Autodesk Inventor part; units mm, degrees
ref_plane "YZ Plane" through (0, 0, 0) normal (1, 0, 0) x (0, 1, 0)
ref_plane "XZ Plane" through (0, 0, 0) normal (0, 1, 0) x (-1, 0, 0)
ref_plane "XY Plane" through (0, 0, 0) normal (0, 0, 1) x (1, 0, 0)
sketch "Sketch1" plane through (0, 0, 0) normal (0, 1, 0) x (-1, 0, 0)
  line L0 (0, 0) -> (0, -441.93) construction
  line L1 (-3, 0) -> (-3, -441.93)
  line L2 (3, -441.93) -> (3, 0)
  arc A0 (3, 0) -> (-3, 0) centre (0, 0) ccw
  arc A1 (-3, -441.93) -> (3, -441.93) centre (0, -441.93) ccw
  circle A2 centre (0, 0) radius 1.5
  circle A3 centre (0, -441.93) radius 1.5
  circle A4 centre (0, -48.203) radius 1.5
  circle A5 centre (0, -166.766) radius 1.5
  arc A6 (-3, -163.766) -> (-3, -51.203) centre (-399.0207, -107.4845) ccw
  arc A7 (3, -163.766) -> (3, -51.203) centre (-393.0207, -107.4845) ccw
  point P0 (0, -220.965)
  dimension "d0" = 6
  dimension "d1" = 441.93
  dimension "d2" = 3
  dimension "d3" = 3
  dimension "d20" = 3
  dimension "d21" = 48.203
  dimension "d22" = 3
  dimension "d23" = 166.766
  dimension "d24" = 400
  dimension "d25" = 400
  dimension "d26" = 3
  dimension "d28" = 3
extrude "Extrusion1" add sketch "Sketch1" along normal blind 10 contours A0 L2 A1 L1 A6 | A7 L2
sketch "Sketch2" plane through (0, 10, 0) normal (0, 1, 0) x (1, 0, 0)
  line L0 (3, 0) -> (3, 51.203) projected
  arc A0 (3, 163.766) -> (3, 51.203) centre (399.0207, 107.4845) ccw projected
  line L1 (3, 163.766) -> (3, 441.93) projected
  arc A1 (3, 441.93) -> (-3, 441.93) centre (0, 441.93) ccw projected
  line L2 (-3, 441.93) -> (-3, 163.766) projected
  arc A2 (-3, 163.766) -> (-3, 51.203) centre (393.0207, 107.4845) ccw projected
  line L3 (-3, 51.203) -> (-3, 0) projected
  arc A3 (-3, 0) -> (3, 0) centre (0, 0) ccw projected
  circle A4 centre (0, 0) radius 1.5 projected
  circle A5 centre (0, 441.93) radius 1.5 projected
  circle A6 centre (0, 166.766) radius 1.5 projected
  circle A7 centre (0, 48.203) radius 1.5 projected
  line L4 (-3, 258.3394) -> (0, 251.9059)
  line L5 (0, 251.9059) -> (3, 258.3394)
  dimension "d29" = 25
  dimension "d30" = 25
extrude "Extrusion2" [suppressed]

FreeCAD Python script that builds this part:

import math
import FreeCAD as App
import Part
import Sketcher

V = App.Vector
Q = App.Units.Quantity

doc = App.newDocument("Part")
body = doc.addObject("PartDesign::Body", "Body")

# Sketch on XZ plane
sketch1 = body.newObject("Sketcher::SketchObject", "Sketch")
sketch1.AttachmentSupport = (doc.getObject("XZ_Plane"), [""])
sketch1.MapMode = "FlatFace"
sketch1.addGeometry([
    Part.ArcOfCircle(Part.Circle(V(0, 0, 0), V(0, 0, 1), 3), math.radians(0), math.radians(180)),  # 0
    Part.LineSegment(V(3, 0, 0), V(3, -51.2, 0)),  # 1
    Part.ArcOfCircle(Part.Circle(V(399, -107.5, 0), V(0, 0, 1), 400), math.radians(171.91), math.radians(188.09)),  # 2
    Part.LineSegment(V(3, -163.8, 0), V(3, -441.9, 0)),  # 3
    Part.ArcOfCircle(Part.Circle(V(0, -441.9, 0), V(0, 0, 1), 3), math.radians(180), math.radians(360)),  # 4
    Part.LineSegment(V(-3, -441.9, 0), V(-3, -163.8, 0)),  # 5
    Part.ArcOfCircle(Part.Circle(V(393, -107.5, 0), V(0, 0, 1), 400), math.radians(171.91), math.radians(188.09)),  # 6
    Part.LineSegment(V(-3, -51.2, 0), V(-3, 0, 0)),  # 7
    Part.Circle(V(0, -441.9, 0), V(0, 0, 1), 1.5),  # 8
    Part.Circle(V(0, -166.8, 0), V(0, 0, 1), 1.5),  # 9
    Part.Circle(V(0, -48.2, 0), V(0, 0, 1), 1.5),  # 10
    Part.Circle(V(0, 0, 0), V(0, 0, 1), 1.5),  # 11
], False)
sketch1.addConstraint([
    Sketcher.Constraint("Tangent", 0, 1, 1, 1),
    Sketcher.Constraint("Coincident", 1, 2, 2, 1),
    Sketcher.Constraint("Coincident", 2, 2, 3, 1),
    Sketcher.Constraint("Tangent", 3, 2, 4, 2),
    Sketcher.Constraint("Tangent", 4, 1, 5, 1),
    Sketcher.Constraint("Coincident", 5, 2, 6, 2),
    Sketcher.Constraint("Coincident", 6, 1, 7, 1),
    Sketcher.Constraint("Tangent", 7, 2, 0, 2),
    Sketcher.Constraint("Vertical", 1),
    Sketcher.Constraint("Vertical", 3),
    Sketcher.Constraint("Vertical", 5),
    Sketcher.Constraint("Vertical", 7),
    Sketcher.Constraint("Coincident", 0, 3, -1, 1),
    Sketcher.Constraint("Coincident", 11, 3, -1, 1),
    Sketcher.Constraint("Coincident", 8, 3, 4, 3),
    Sketcher.Constraint("Equal", 0, 4),
    Sketcher.Constraint("Equal", 2, 6),
    Sketcher.Constraint("Equal", 8, 9),
    Sketcher.Constraint("Equal", 9, 10),
    Sketcher.Constraint("Equal", 10, 11),
    Sketcher.Constraint("Symmetric", 2, 2, 5, 2, -2),
    Sketcher.Constraint("PointOnObject", 9, 3, -2),
    Sketcher.Constraint("PointOnObject", 10, 3, -2),
    Sketcher.Constraint("Horizontal", 2, 3, 6, 3),
    Sketcher.Constraint("Diameter", 8, Q("3 mm")),
    Sketcher.Constraint("Radius", 0, Q("3 mm")),
    Sketcher.Constraint("Radius", 2, Q("400 mm")),
    Sketcher.Constraint("DistanceY", 1, 2, 10, 3, Q("3 mm")),
    Sketcher.Constraint("DistanceY", 9, 3, 2, 2, Q("3 mm")),
    Sketcher.Constraint("DistanceY", 4, 3, -1, 1, Q("441.93 mm")),
    Sketcher.Constraint("DistanceY", 9, 3, -1, 1, Q("166.766 mm")),
    Sketcher.Constraint("DistanceY", 10, 3, -1, 1, Q("48.203 mm")),
])
pad1 = body.newObject("PartDesign::Pad", "Pad")
pad1.Profile = sketch1
pad1.Length = 10
pad1.Reversed = True

doc.recompute()
